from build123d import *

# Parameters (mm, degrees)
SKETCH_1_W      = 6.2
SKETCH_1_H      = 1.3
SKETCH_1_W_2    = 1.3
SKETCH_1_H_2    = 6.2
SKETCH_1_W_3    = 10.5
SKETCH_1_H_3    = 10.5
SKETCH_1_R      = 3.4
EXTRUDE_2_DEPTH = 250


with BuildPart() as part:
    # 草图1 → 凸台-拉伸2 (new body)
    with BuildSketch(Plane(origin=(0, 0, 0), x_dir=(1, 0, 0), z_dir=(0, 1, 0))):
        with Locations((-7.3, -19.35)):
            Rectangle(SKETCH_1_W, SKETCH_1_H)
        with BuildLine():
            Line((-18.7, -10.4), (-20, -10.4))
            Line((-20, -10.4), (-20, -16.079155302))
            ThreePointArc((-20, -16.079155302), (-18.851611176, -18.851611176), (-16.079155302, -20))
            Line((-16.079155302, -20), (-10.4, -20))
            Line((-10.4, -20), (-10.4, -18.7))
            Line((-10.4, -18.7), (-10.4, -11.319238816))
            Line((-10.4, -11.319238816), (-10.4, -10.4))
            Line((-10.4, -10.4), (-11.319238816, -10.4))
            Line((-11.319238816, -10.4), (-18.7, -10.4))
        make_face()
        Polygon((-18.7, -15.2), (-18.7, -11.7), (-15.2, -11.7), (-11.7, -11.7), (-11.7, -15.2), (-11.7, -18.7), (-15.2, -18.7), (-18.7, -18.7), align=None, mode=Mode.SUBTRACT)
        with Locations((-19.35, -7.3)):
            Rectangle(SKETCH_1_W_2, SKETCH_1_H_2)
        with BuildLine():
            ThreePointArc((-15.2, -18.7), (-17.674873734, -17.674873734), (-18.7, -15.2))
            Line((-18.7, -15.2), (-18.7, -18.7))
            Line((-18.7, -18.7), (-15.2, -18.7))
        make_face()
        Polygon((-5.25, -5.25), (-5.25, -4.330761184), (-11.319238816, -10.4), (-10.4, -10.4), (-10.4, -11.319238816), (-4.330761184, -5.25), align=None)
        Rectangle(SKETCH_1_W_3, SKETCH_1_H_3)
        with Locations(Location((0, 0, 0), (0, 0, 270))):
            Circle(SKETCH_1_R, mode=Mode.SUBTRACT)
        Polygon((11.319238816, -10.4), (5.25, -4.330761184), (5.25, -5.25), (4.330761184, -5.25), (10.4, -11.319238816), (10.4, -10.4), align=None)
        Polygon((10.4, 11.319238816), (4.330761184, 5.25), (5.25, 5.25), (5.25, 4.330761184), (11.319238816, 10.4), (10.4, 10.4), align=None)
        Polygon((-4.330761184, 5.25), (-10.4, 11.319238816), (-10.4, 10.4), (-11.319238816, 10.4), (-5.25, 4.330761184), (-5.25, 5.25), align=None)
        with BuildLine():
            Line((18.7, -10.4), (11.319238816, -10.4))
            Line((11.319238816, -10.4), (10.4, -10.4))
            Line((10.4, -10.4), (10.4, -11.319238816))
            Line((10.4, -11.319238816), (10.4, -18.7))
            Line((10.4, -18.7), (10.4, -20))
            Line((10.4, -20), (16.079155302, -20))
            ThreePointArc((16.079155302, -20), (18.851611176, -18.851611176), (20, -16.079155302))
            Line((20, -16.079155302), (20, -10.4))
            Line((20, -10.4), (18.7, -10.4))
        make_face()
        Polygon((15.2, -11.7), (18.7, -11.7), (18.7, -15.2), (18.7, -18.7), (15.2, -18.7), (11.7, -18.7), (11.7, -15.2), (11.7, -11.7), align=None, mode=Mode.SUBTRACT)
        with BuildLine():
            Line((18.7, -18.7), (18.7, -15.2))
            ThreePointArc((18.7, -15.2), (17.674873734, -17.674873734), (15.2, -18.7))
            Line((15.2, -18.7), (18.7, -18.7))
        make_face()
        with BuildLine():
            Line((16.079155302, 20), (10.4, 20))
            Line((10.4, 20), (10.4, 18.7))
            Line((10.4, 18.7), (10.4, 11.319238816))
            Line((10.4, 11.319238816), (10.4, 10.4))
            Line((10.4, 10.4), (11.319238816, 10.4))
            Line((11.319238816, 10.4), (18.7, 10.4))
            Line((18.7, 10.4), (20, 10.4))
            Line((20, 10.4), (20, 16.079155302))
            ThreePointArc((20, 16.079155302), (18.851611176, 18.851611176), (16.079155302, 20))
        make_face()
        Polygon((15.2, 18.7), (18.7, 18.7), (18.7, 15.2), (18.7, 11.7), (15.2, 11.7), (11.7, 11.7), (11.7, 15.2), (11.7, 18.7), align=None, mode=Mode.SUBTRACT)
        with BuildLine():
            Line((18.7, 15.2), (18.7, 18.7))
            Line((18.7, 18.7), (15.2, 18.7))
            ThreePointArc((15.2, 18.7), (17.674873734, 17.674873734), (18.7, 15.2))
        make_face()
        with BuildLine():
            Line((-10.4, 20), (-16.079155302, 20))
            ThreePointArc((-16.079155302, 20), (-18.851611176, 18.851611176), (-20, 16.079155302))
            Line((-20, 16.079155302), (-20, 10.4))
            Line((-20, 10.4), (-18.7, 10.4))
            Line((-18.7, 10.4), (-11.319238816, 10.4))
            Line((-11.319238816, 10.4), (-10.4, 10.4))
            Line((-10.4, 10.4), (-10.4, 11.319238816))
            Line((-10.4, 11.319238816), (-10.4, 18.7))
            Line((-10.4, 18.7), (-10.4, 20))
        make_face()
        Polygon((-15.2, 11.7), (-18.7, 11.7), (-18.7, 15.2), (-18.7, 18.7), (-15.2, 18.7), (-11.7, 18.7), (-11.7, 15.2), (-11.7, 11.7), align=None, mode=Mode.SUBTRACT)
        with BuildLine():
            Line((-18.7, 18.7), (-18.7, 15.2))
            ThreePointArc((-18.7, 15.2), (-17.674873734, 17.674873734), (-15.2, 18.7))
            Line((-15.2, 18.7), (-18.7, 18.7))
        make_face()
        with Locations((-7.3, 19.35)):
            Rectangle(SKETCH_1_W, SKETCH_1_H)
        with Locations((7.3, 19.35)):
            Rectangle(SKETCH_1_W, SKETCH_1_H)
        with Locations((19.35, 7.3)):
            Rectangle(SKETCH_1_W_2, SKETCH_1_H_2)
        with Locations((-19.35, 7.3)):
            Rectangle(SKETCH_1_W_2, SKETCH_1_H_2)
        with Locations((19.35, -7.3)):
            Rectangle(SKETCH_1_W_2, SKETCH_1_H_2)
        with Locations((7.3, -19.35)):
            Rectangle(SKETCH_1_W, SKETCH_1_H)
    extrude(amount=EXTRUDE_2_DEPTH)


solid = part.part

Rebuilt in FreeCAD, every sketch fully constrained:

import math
import FreeCAD as App
import Part
import Sketcher

V = App.Vector
Q = App.Units.Quantity

doc = App.newDocument("Part")
body = doc.addObject("PartDesign::Body", "Body")

sketch1 = body.newObject("Sketcher::SketchObject", "Sketch")
sketch1.AttachmentSupport = (doc.getObject("XZ_Plane"), [""])
sketch1.MapMode = "FlatFace"
sketch1.addGeometry(Part.LineSegment(V(-4.2, 20, 0), V(-4.2, 18.7, 0)), False)
sketch1.addGeometry(Part.LineSegment(V(-4.2, 18.7, 0), V(-10.4, 18.7, 0)), False)
sketch1.addGeometry(Part.LineSegment(V(-10.4, 18.7, 0), V(-10.4, 11.3, 0)), False)
sketch1.addGeometry(Part.LineSegment(V(-10.4, 11.3, 0), V(-4.3, 5.2, 0)), False)
sketch1.addGeometry(Part.LineSegment(V(-4.3, 5.2, 0), V(4.3, 5.2, 0)), False)
sketch1.addGeometry(Part.LineSegment(V(4.3, 5.2, 0), V(10.4, 11.3, 0)), False)
sketch1.addGeometry(Part.LineSegment(V(10.4, 11.3, 0), V(10.4, 18.7, 0)), False)
sketch1.addGeometry(Part.LineSegment(V(10.4, 18.7, 0), V(4.2, 18.7, 0)), False)
sketch1.addGeometry(Part.LineSegment(V(4.2, 18.7, 0), V(4.2, 20, 0)), False)
sketch1.addGeometry(Part.LineSegment(V(4.2, 20, 0), V(16.1, 20, 0)), False)
sketch1.addGeometry(Part.ArcOfCircle(Part.Circle(V(16.1, 16.1, 0), V(0, 0, 1), 3.9), math.radians(0), math.radians(90)), False)
sketch1.addGeometry(Part.LineSegment(V(20, 16.1, 0), V(20, 4.2, 0)), False)
sketch1.addGeometry(Part.LineSegment(V(20, 4.2, 0), V(18.7, 4.2, 0)), False)
sketch1.addGeometry(Part.LineSegment(V(18.7, 4.2, 0), V(18.7, 10.4, 0)), False)
sketch1.addGeometry(Part.LineSegment(V(18.7, 10.4, 0), V(11.3, 10.4, 0)), False)
sketch1.addGeometry(Part.LineSegment(V(11.3, 10.4, 0), V(5.2, 4.3, 0)), False)
sketch1.addGeometry(Part.LineSegment(V(5.2, 4.3, 0), V(5.2, -4.3, 0)), False)
sketch1.addGeometry(Part.LineSegment(V(5.2, -4.3, 0), V(11.3, -10.4, 0)), False)
sketch1.addGeometry(Part.LineSegment(V(11.3, -10.4, 0), V(18.7, -10.4, 0)), False)
sketch1.addGeometry(Part.LineSegment(V(18.7, -10.4, 0), V(18.7, -4.2, 0)), False)
sketch1.addGeometry(Part.LineSegment(V(18.7, -4.2, 0), V(20, -4.2, 0)), False)
sketch1.addGeometry(Part.LineSegment(V(20, -4.2, 0), V(20, -16.1, 0)), False)
sketch1.addGeometry(Part.ArcOfCircle(Part.Circle(V(16.1, -16.1, 0), V(0, 0, 1), 3.9), math.radians(-90), math.radians(0)), False)
sketch1.addGeometry(Part.LineSegment(V(16.1, -20, 0), V(4.2, -20, 0)), False)
sketch1.addGeometry(Part.LineSegment(V(4.2, -20, 0), V(4.2, -18.7, 0)), False)
sketch1.addGeometry(Part.LineSegment(V(4.2, -18.7, 0), V(10.4, -18.7, 0)), False)
sketch1.addGeometry(Part.LineSegment(V(10.4, -18.7, 0), V(10.4, -11.3, 0)), False)
sketch1.addGeometry(Part.LineSegment(V(10.4, -11.3, 0), V(4.3, -5.2, 0)), False)
sketch1.addGeometry(Part.LineSegment(V(4.3, -5.2, 0), V(-4.3, -5.2, 0)), False)
sketch1.addGeometry(Part.LineSegment(V(-4.3, -5.2, 0), V(-10.4, -11.3, 0)), False)
sketch1.addGeometry(Part.LineSegment(V(-10.4, -11.3, 0), V(-10.4, -18.7, 0)), False)
sketch1.addGeometry(Part.LineSegment(V(-10.4, -18.7, 0), V(-4.2, -18.7, 0)), False)
sketch1.addGeometry(Part.LineSegment(V(-4.2, -18.7, 0), V(-4.2, -20, 0)), False)
sketch1.addGeometry(Part.LineSegment(V(-4.2, -20, 0), V(-16.1, -20, 0)), False)
sketch1.addGeometry(Part.ArcOfCircle(Part.Circle(V(-16.1, -16.1, 0), V(0, 0, 1), 3.9), math.radians(180), math.radians(270)), False)
sketch1.addGeometry(Part.LineSegment(V(-20, -16.1, 0), V(-20, -4.2, 0)), False)
sketch1.addGeometry(Part.LineSegment(V(-20, -4.2, 0), V(-18.7, -4.2, 0)), False)
sketch1.addGeometry(Part.LineSegment(V(-18.7, -4.2, 0), V(-18.7, -10.4, 0)), False)
sketch1.addGeometry(Part.LineSegment(V(-18.7, -10.4, 0), V(-11.3, -10.4, 0)), False)
sketch1.addGeometry(Part.LineSegment(V(-11.3, -10.4, 0), V(-5.2, -4.3, 0)), False)
sketch1.addGeometry(Part.LineSegment(V(-5.2, -4.3, 0), V(-5.2, 4.3, 0)), False)
sketch1.addGeometry(Part.LineSegment(V(-5.2, 4.3, 0), V(-11.3, 10.4, 0)), False)
sketch1.addGeometry(Part.LineSegment(V(-11.3, 10.4, 0), V(-18.7, 10.4, 0)), False)
sketch1.addGeometry(Part.LineSegment(V(-18.7, 10.4, 0), V(-18.7, 4.2, 0)), False)
sketch1.addGeometry(Part.LineSegment(V(-18.7, 4.2, 0), V(-20, 4.2, 0)), False)
sketch1.addGeometry(Part.LineSegment(V(-20, 4.2, 0), V(-20, 16.1, 0)), False)
sketch1.addGeometry(Part.ArcOfCircle(Part.Circle(V(-16.1, 16.1, 0), V(0, 0, 1), 3.9), math.radians(90), math.radians(180)), False)
sketch1.addGeometry(Part.LineSegment(V(-16.1, 20, 0), V(-4.2, 20, 0)), False)
sketch1.addGeometry(Part.LineSegment(V(-18.7, 15.2, 0), V(-18.7, 11.7, 0)), False)
sketch1.addGeometry(Part.LineSegment(V(-18.7, 11.7, 0), V(-11.7, 11.7, 0)), False)
sketch1.addGeometry(Part.LineSegment(V(-11.7, 11.7, 0), V(-11.7, 18.7, 0)), False)
sketch1.addGeometry(Part.LineSegment(V(-11.7, 18.7, 0), V(-15.2, 18.7, 0)), False)
sketch1.addGeometry(Part.ArcOfCircle(Part.Circle(V(-15.2, 15.2, 0), V(0, 0, 1), 3.5), math.radians(90), math.radians(180)), False)
sketch1.addGeometry(Part.LineSegment(V(11.7, 11.7, 0), V(18.7, 11.7, 0)), False)
sketch1.addGeometry(Part.LineSegment(V(18.7, 11.7, 0), V(18.7, 15.2, 0)), False)
sketch1.addGeometry(Part.ArcOfCircle(Part.Circle(V(15.2, 15.2, 0), V(0, 0, 1), 3.5), math.radians(0), math.radians(90)), False)
sketch1.addGeometry(Part.LineSegment(V(15.2, 18.7, 0), V(11.7, 18.7, 0)), False)
sketch1.addGeometry(Part.LineSegment(V(11.7, 18.7, 0), V(11.7, 11.7, 0)), False)
sketch1.addGeometry(Part.Circle(V(0, 0, 0), V(0, 0, 1), 3.4), False)
sketch1.addGeometry(Part.LineSegment(V(-11.7, -11.7, 0), V(-18.7, -11.7, 0)), False)
sketch1.addGeometry(Part.LineSegment(V(-18.7, -11.7, 0), V(-18.7, -15.2, 0)), False)
sketch1.addGeometry(Part.ArcOfCircle(Part.Circle(V(-15.2, -15.2, 0), V(0, 0, 1), 3.5), math.radians(-180), math.radians(-90)), False)
sketch1.addGeometry(Part.LineSegment(V(-15.2, -18.7, 0), V(-11.7, -18.7, 0)), False)
sketch1.addGeometry(Part.LineSegment(V(-11.7, -18.7, 0), V(-11.7, -11.7, 0)), False)
sketch1.addGeometry(Part.LineSegment(V(11.7, -18.7, 0), V(15.2, -18.7, 0)), False)
sketch1.addGeometry(Part.ArcOfCircle(Part.Circle(V(15.2, -15.2, 0), V(0, 0, 1), 3.5), math.radians(-90), math.radians(0)), False)
sketch1.addGeometry(Part.LineSegment(V(18.7, -15.2, 0), V(18.7, -11.7, 0)), False)
sketch1.addGeometry(Part.LineSegment(V(18.7, -11.7, 0), V(11.7, -11.7, 0)), False)
sketch1.addGeometry(Part.LineSegment(V(11.7, -11.7, 0), V(11.7, -18.7, 0)), False)
sketch1.addConstraint(Sketcher.Constraint("Coincident", 0, 2, 1, 1))
sketch1.addConstraint(Sketcher.Constraint("Coincident", 1, 2, 2, 1))
sketch1.addConstraint(Sketcher.Constraint("Coincident", 2, 2, 3, 1))
sketch1.addConstraint(Sketcher.Constraint("Coincident", 3, 2, 4, 1))
sketch1.addConstraint(Sketcher.Constraint("Coincident", 4, 2, 5, 1))
sketch1.addConstraint(Sketcher.Constraint("Coincident", 5, 2, 6, 1))
sketch1.addConstraint(Sketcher.Constraint("Coincident", 6, 2, 7, 1))
sketch1.addConstraint(Sketcher.Constraint("Coincident", 7, 2, 8, 1))
sketch1.addConstraint(Sketcher.Constraint("Coincident", 8, 2, 9, 1))
sketch1.addConstraint(Sketcher.Constraint("Tangent", 9, 2, 10, 2))
sketch1.addConstraint(Sketcher.Constraint("Tangent", 10, 1, 11, 1))
sketch1.addConstraint(Sketcher.Constraint("Coincident", 11, 2, 12, 1))
sketch1.addConstraint(Sketcher.Constraint("Coincident", 12, 2, 13, 1))
sketch1.addConstraint(Sketcher.Constraint("Coincident", 13, 2, 14, 1))
sketch1.addConstraint(Sketcher.Constraint("Coincident", 14, 2, 15, 1))
sketch1.addConstraint(Sketcher.Constraint("Coincident", 15, 2, 16, 1))
sketch1.addConstraint(Sketcher.Constraint("Coincident", 16, 2, 17, 1))
sketch1.addConstraint(Sketcher.Constraint("Coincident", 17, 2, 18, 1))
sketch1.addConstraint(Sketcher.Constraint("Coincident", 18, 2, 19, 1))
sketch1.addConstraint(Sketcher.Constraint("Coincident", 19, 2, 20, 1))
sketch1.addConstraint(Sketcher.Constraint("Coincident", 20, 2, 21, 1))
sketch1.addConstraint(Sketcher.Constraint("Tangent", 21, 2, 22, 2))
sketch1.addConstraint(Sketcher.Constraint("Tangent", 22, 1, 23, 1))
sketch1.addConstraint(Sketcher.Constraint("Coincident", 23, 2, 24, 1))
sketch1.addConstraint(Sketcher.Constraint("Coincident", 24, 2, 25, 1))
sketch1.addConstraint(Sketcher.Constraint("Coincident", 25, 2, 26, 1))
sketch1.addConstraint(Sketcher.Constraint("Coincident", 26, 2, 27, 1))
sketch1.addConstraint(Sketcher.Constraint("Coincident", 27, 2, 28, 1))
sketch1.addConstraint(Sketcher.Constraint("Coincident", 28, 2, 29, 1))
sketch1.addConstraint(Sketcher.Constraint("Coincident", 29, 2, 30, 1))
sketch1.addConstraint(Sketcher.Constraint("Coincident", 30, 2, 31, 1))
sketch1.addConstraint(Sketcher.Constraint("Coincident", 31, 2, 32, 1))
sketch1.addConstraint(Sketcher.Constraint("Coincident", 32, 2, 33, 1))
sketch1.addConstraint(Sketcher.Constraint("Tangent", 33, 2, 34, 2))
sketch1.addConstraint(Sketcher.Constraint("Tangent", 34, 1, 35, 1))
sketch1.addConstraint(Sketcher.Constraint("Coincident", 35, 2, 36, 1))
sketch1.addConstraint(Sketcher.Constraint("Coincident", 36, 2, 37, 1))
sketch1.addConstraint(Sketcher.Constraint("Coincident", 37, 2, 38, 1))
sketch1.addConstraint(Sketcher.Constraint("Coincident", 38, 2, 39, 1))
sketch1.addConstraint(Sketcher.Constraint("Coincident", 39, 2, 40, 1))
sketch1.addConstraint(Sketcher.Constraint("Coincident", 40, 2, 41, 1))
sketch1.addConstraint(Sketcher.Constraint("Coincident", 41, 2, 42, 1))
sketch1.addConstraint(Sketcher.Constraint("Coincident", 42, 2, 43, 1))
sketch1.addConstraint(Sketcher.Constraint("Coincident", 43, 2, 44, 1))
sketch1.addConstraint(Sketcher.Constraint("Coincident", 44, 2, 45, 1))
sketch1.addConstraint(Sketcher.Constraint("Tangent", 45, 2, 46, 2))
sketch1.addConstraint(Sketcher.Constraint("Tangent", 46, 1, 47, 1))
sketch1.addConstraint(Sketcher.Constraint("Coincident", 47, 2, 0, 1))
sketch1.addConstraint(Sketcher.Constraint("Coincident", 48, 2, 49, 1))
sketch1.addConstraint(Sketcher.Constraint("Coincident", 49, 2, 50, 1))
sketch1.addConstraint(Sketcher.Constraint("Coincident", 50, 2, 51, 1))
sketch1.addConstraint(Sketcher.Constraint("Tangent", 51, 2, 52, 1))
sketch1.addConstraint(Sketcher.Constraint("Tangent", 52, 2, 48, 1))
sketch1.addConstraint(Sketcher.Constraint("Coincident", 53, 2, 54, 1))
sketch1.addConstraint(Sketcher.Constraint("Tangent", 54, 2, 55, 1))
sketch1.addConstraint(Sketcher.Constraint("Tangent", 55, 2, 56, 1))
sketch1.addConstraint(Sketcher.Constraint("Coincident", 56, 2, 57, 1))
sketch1.addConstraint(Sketcher.Constraint("Coincident", 57, 2, 53, 1))
sketch1.addConstraint(Sketcher.Constraint("Coincident", 59, 2, 60, 1))
sketch1.addConstraint(Sketcher.Constraint("Tangent", 60, 2, 61, 1))
sketch1.addConstraint(Sketcher.Constraint("Tangent", 61, 2, 62, 1))
sketch1.addConstraint(Sketcher.Constraint("Coincident", 62, 2, 63, 1))
sketch1.addConstraint(Sketcher.Constraint("Coincident", 63, 2, 59, 1))
sketch1.addConstraint(Sketcher.Constraint("Tangent", 64, 2, 65, 1))
sketch1.addConstraint(Sketcher.Constraint("Tangent", 65, 2, 66, 1))
sketch1.addConstraint(Sketcher.Constraint("Coincident", 66, 2, 67, 1))
sketch1.addConstraint(Sketcher.Constraint("Coincident", 67, 2, 68, 1))
sketch1.addConstraint(Sketcher.Constraint("Coincident", 68, 2, 64, 1))
sketch1.addConstraint(Sketcher.Constraint("Vertical", 0))
sketch1.addConstraint(Sketcher.Constraint("Horizontal", 1))
sketch1.addConstraint(Sketcher.Constraint("Vertical", 2))
sketch1.addConstraint(Sketcher.Constraint("Horizontal", 4))
sketch1.addConstraint(Sketcher.Constraint("Vertical", 6))
sketch1.addConstraint(Sketcher.Constraint("Horizontal", 7))
sketch1.addConstraint(Sketcher.Constraint("Vertical", 8))
sketch1.addConstraint(Sketcher.Constraint("Horizontal", 9))
sketch1.addConstraint(Sketcher.Constraint("Vertical", 11))
sketch1.addConstraint(Sketcher.Constraint("Horizontal", 12))
sketch1.addConstraint(Sketcher.Constraint("Vertical", 13))
sketch1.addConstraint(Sketcher.Constraint("Horizontal", 14))
sketch1.addConstraint(Sketcher.Constraint("Vertical", 16))
sketch1.addConstraint(Sketcher.Constraint("Horizontal", 18))
sketch1.addConstraint(Sketcher.Constraint("Vertical", 19))
sketch1.addConstraint(Sketcher.Constraint("Horizontal", 20))
sketch1.addConstraint(Sketcher.Constraint("Vertical", 21))
sketch1.addConstraint(Sketcher.Constraint("Horizontal", 23))
sketch1.addConstraint(Sketcher.Constraint("Vertical", 24))
sketch1.addConstraint(Sketcher.Constraint("Horizontal", 25))
sketch1.addConstraint(Sketcher.Constraint("Vertical", 26))
sketch1.addConstraint(Sketcher.Constraint("Horizontal", 28))
sketch1.addConstraint(Sketcher.Constraint("Vertical", 30))
sketch1.addConstraint(Sketcher.Constraint("Horizontal", 31))
sketch1.addConstraint(Sketcher.Constraint("Vertical", 32))
sketch1.addConstraint(Sketcher.Constraint("Horizontal", 33))
sketch1.addConstraint(Sketcher.Constraint("Vertical", 35))
sketch1.addConstraint(Sketcher.Constraint("Horizontal", 36))
sketch1.addConstraint(Sketcher.Constraint("Vertical", 37))
sketch1.addConstraint(Sketcher.Constraint("Horizontal", 38))
sketch1.addConstraint(Sketcher.Constraint("Vertical", 40))
sketch1.addConstraint(Sketcher.Constraint("Horizontal", 42))
sketch1.addConstraint(Sketcher.Constraint("Vertical", 43))
sketch1.addConstraint(Sketcher.Constraint("Horizontal", 44))
sketch1.addConstraint(Sketcher.Constraint("Vertical", 45))
sketch1.addConstraint(Sketcher.Constraint("Horizontal", 47))
sketch1.addConstraint(Sketcher.Constraint("Vertical", 48))
sketch1.addConstraint(Sketcher.Constraint("Horizontal", 49))
sketch1.addConstraint(Sketcher.Constraint("Vertical", 50))
sketch1.addConstraint(Sketcher.Constraint("Horizontal", 51))
sketch1.addConstraint(Sketcher.Constraint("Horizontal", 53))
sketch1.addConstraint(Sketcher.Constraint("Vertical", 54))
sketch1.addConstraint(Sketcher.Constraint("Horizontal", 56))
sketch1.addConstraint(Sketcher.Constraint("Vertical", 57))
sketch1.addConstraint(Sketcher.Constraint("Horizontal", 59))
sketch1.addConstraint(Sketcher.Constraint("Vertical", 60))
sketch1.addConstraint(Sketcher.Constraint("Horizontal", 62))
sketch1.addConstraint(Sketcher.Constraint("Vertical", 63))
sketch1.addConstraint(Sketcher.Constraint("Horizontal", 64))
sketch1.addConstraint(Sketcher.Constraint("Vertical", 66))
sketch1.addConstraint(Sketcher.Constraint("Horizontal", 67))
sketch1.addConstraint(Sketcher.Constraint("Vertical", 68))
sketch1.addConstraint(Sketcher.Constraint("Coincident", 58, 3, -1, 1))
sketch1.addConstraint(Sketcher.Constraint("Equal", 10, 22))
sketch1.addConstraint(Sketcher.Constraint("Equal", 22, 34))
sketch1.addConstraint(Sketcher.Constraint("Equal", 34, 46))
sketch1.addConstraint(Sketcher.Constraint("Equal", 52, 55))
sketch1.addConstraint(Sketcher.Constraint("Equal", 55, 61))
sketch1.addConstraint(Sketcher.Constraint("Equal", 61, 65))
sketch1.addConstraint(Sketcher.Constraint("Symmetric", 10, 3, 34, 3, -1, 1))
sketch1.addConstraint(Sketcher.Constraint("Symmetric", 22, 3, 46, 3, -1, 1))
sketch1.addConstraint(Sketcher.Constraint("Symmetric", 55, 3, 61, 3, -1, 1))
sketch1.addConstraint(Sketcher.Constraint("Symmetric", 52, 3, 65, 3, -1, 1))
sketch1.addConstraint(Sketcher.Constraint("Symmetric", 0, 2, 24, 2, -1, 1))
sketch1.addConstraint(Sketcher.Constraint("Symmetric", 2, 2, 26, 2, -1, 1))
sketch1.addConstraint(Sketcher.Constraint("Symmetric", 3, 2, 27, 2, -1, 1))
sketch1.addConstraint(Sketcher.Constraint("Symmetric", 5, 2, 29, 2, -1, 1))
sketch1.addConstraint(Sketcher.Constraint("Symmetric", 7, 2, 31, 2, -1, 1))
sketch1.addConstraint(Sketcher.Constraint("Symmetric", 12, 2, 36, 2, -1, 1))
sketch1.addConstraint(Sketcher.Constraint("Symmetric", 14, 2, 38, 2, -1, 1))
sketch1.addConstraint(Sketcher.Constraint("Symmetric", 15, 2, 39, 2, -1, 1))
sketch1.addConstraint(Sketcher.Constraint("Symmetric", 17, 2, 41, 2, -1, 1))
sketch1.addConstraint(Sketcher.Constraint("Symmetric", 19, 2, 43, 2, -1, 1))
sketch1.addConstraint(Sketcher.Constraint("Symmetric", 57, 2, 63, 2, -1, 1))
sketch1.addConstraint(Sketcher.Constraint("Symmetric", 49, 2, 67, 2, -1, 1))
sketch1.addConstraint(Sketcher.Constraint("Symmetric", 22, 3, 34, 3, -2))
sketch1.addConstraint(Sketcher.Constraint("Symmetric", 52, 3, 55, 3, -2))
sketch1.addConstraint(Sketcher.Constraint("Symmetric", 2, 2, 5, 2, -2))
sketch1.addConstraint(Sketcher.Constraint("Symmetric", 0, 2, 7, 2, -2))
sketch1.addConstraint(Sketcher.Constraint("Symmetric", 19, 2, 36, 2, -2))
sketch1.addConstraint(Sketcher.Constraint("Symmetric", 17, 2, 38, 2, -2))
sketch1.addConstraint(Sketcher.Constraint("Symmetric", 49, 2, 57, 2, -2))
sketch1.addConstraint(Sketcher.Constraint("Perpendicular", 3, 5))
sketch1.addConstraint(Sketcher.Constraint("Parallel", 5, 15))
sketch1.addConstraint(Sketcher.Constraint("Perpendicular", 15, 17))
sketch1.addConstraint(Sketcher.Constraint("Perpendicular", 27, 29))
sketch1.addConstraint(Sketcher.Constraint("Perpendicular", 39, 41))
sketch1.addConstraint(Sketcher.Constraint("Horizontal", 16, 2, 39, 2))
sketch1.addConstraint(Sketcher.Constraint("Horizontal", 7, 2, 50, 2))
sketch1.addConstraint(Sketcher.Constraint("Vertical", 43, 2, 48, 2))
sketch1.addConstraint(Sketcher.Constraint("Equal", 44, 0))
sketch1.addConstraint(Sketcher.Constraint("Equal", 42, 2))
sketch1.addConstraint(Sketcher.Constraint("Equal", 47, 11))
sketch1.addConstraint(Sketcher.Constraint("Equal", 31, 13))
sketch1.addConstraint(Sketcher.Constraint("Equal", 28, 16))
sketch1.addConstraint(Sketcher.Constraint("Equal", 64, 48))
sketch1.addConstraint(Sketcher.Constraint("Equal", 5, 15))
sketch1.addConstraint(Sketcher.Constraint("Diameter", 58, Q("6.8 mm")))
sketch1.addConstraint(Sketcher.Constraint("Radius", 52, Q("3.5 mm")))
sketch1.addConstraint(Sketcher.Constraint("DistanceX", 49, 1, 49, 2, Q("7 mm")))
sketch1.addConstraint(Sketcher.Constraint("DistanceX", 1, 2, 1, 1, Q("6.2 mm")))
sketch1.addConstraint(Sketcher.Constraint("DistanceX", 12, 2, 12, 1, Q("1.3 mm")))
sketch1.addConstraint(Sketcher.Constraint("DistanceY", -1, 1, 8, 2, Q("20 mm")))
sketch1.addConstraint(Sketcher.Constraint("DistanceX", 0, 2, -1, 1, Q("4.2 mm")))
sketch1.addConstraint(Sketcher.Constraint("DistanceY", -1, 1, 3, 2, Q("5.25 mm")))
sketch1.addConstraint(Sketcher.Constraint("Radius", 10, Q("3.920845 mm")))
sketch1.addConstraint(Sketcher.Constraint("Distance", 3, Q("8.5832 mm")))
pad1 = body.newObject("PartDesign::Pad", "Pad")
pad1.Profile = sketch1
pad1.Length = 250
pad1.Reversed = True

doc.recompute()
